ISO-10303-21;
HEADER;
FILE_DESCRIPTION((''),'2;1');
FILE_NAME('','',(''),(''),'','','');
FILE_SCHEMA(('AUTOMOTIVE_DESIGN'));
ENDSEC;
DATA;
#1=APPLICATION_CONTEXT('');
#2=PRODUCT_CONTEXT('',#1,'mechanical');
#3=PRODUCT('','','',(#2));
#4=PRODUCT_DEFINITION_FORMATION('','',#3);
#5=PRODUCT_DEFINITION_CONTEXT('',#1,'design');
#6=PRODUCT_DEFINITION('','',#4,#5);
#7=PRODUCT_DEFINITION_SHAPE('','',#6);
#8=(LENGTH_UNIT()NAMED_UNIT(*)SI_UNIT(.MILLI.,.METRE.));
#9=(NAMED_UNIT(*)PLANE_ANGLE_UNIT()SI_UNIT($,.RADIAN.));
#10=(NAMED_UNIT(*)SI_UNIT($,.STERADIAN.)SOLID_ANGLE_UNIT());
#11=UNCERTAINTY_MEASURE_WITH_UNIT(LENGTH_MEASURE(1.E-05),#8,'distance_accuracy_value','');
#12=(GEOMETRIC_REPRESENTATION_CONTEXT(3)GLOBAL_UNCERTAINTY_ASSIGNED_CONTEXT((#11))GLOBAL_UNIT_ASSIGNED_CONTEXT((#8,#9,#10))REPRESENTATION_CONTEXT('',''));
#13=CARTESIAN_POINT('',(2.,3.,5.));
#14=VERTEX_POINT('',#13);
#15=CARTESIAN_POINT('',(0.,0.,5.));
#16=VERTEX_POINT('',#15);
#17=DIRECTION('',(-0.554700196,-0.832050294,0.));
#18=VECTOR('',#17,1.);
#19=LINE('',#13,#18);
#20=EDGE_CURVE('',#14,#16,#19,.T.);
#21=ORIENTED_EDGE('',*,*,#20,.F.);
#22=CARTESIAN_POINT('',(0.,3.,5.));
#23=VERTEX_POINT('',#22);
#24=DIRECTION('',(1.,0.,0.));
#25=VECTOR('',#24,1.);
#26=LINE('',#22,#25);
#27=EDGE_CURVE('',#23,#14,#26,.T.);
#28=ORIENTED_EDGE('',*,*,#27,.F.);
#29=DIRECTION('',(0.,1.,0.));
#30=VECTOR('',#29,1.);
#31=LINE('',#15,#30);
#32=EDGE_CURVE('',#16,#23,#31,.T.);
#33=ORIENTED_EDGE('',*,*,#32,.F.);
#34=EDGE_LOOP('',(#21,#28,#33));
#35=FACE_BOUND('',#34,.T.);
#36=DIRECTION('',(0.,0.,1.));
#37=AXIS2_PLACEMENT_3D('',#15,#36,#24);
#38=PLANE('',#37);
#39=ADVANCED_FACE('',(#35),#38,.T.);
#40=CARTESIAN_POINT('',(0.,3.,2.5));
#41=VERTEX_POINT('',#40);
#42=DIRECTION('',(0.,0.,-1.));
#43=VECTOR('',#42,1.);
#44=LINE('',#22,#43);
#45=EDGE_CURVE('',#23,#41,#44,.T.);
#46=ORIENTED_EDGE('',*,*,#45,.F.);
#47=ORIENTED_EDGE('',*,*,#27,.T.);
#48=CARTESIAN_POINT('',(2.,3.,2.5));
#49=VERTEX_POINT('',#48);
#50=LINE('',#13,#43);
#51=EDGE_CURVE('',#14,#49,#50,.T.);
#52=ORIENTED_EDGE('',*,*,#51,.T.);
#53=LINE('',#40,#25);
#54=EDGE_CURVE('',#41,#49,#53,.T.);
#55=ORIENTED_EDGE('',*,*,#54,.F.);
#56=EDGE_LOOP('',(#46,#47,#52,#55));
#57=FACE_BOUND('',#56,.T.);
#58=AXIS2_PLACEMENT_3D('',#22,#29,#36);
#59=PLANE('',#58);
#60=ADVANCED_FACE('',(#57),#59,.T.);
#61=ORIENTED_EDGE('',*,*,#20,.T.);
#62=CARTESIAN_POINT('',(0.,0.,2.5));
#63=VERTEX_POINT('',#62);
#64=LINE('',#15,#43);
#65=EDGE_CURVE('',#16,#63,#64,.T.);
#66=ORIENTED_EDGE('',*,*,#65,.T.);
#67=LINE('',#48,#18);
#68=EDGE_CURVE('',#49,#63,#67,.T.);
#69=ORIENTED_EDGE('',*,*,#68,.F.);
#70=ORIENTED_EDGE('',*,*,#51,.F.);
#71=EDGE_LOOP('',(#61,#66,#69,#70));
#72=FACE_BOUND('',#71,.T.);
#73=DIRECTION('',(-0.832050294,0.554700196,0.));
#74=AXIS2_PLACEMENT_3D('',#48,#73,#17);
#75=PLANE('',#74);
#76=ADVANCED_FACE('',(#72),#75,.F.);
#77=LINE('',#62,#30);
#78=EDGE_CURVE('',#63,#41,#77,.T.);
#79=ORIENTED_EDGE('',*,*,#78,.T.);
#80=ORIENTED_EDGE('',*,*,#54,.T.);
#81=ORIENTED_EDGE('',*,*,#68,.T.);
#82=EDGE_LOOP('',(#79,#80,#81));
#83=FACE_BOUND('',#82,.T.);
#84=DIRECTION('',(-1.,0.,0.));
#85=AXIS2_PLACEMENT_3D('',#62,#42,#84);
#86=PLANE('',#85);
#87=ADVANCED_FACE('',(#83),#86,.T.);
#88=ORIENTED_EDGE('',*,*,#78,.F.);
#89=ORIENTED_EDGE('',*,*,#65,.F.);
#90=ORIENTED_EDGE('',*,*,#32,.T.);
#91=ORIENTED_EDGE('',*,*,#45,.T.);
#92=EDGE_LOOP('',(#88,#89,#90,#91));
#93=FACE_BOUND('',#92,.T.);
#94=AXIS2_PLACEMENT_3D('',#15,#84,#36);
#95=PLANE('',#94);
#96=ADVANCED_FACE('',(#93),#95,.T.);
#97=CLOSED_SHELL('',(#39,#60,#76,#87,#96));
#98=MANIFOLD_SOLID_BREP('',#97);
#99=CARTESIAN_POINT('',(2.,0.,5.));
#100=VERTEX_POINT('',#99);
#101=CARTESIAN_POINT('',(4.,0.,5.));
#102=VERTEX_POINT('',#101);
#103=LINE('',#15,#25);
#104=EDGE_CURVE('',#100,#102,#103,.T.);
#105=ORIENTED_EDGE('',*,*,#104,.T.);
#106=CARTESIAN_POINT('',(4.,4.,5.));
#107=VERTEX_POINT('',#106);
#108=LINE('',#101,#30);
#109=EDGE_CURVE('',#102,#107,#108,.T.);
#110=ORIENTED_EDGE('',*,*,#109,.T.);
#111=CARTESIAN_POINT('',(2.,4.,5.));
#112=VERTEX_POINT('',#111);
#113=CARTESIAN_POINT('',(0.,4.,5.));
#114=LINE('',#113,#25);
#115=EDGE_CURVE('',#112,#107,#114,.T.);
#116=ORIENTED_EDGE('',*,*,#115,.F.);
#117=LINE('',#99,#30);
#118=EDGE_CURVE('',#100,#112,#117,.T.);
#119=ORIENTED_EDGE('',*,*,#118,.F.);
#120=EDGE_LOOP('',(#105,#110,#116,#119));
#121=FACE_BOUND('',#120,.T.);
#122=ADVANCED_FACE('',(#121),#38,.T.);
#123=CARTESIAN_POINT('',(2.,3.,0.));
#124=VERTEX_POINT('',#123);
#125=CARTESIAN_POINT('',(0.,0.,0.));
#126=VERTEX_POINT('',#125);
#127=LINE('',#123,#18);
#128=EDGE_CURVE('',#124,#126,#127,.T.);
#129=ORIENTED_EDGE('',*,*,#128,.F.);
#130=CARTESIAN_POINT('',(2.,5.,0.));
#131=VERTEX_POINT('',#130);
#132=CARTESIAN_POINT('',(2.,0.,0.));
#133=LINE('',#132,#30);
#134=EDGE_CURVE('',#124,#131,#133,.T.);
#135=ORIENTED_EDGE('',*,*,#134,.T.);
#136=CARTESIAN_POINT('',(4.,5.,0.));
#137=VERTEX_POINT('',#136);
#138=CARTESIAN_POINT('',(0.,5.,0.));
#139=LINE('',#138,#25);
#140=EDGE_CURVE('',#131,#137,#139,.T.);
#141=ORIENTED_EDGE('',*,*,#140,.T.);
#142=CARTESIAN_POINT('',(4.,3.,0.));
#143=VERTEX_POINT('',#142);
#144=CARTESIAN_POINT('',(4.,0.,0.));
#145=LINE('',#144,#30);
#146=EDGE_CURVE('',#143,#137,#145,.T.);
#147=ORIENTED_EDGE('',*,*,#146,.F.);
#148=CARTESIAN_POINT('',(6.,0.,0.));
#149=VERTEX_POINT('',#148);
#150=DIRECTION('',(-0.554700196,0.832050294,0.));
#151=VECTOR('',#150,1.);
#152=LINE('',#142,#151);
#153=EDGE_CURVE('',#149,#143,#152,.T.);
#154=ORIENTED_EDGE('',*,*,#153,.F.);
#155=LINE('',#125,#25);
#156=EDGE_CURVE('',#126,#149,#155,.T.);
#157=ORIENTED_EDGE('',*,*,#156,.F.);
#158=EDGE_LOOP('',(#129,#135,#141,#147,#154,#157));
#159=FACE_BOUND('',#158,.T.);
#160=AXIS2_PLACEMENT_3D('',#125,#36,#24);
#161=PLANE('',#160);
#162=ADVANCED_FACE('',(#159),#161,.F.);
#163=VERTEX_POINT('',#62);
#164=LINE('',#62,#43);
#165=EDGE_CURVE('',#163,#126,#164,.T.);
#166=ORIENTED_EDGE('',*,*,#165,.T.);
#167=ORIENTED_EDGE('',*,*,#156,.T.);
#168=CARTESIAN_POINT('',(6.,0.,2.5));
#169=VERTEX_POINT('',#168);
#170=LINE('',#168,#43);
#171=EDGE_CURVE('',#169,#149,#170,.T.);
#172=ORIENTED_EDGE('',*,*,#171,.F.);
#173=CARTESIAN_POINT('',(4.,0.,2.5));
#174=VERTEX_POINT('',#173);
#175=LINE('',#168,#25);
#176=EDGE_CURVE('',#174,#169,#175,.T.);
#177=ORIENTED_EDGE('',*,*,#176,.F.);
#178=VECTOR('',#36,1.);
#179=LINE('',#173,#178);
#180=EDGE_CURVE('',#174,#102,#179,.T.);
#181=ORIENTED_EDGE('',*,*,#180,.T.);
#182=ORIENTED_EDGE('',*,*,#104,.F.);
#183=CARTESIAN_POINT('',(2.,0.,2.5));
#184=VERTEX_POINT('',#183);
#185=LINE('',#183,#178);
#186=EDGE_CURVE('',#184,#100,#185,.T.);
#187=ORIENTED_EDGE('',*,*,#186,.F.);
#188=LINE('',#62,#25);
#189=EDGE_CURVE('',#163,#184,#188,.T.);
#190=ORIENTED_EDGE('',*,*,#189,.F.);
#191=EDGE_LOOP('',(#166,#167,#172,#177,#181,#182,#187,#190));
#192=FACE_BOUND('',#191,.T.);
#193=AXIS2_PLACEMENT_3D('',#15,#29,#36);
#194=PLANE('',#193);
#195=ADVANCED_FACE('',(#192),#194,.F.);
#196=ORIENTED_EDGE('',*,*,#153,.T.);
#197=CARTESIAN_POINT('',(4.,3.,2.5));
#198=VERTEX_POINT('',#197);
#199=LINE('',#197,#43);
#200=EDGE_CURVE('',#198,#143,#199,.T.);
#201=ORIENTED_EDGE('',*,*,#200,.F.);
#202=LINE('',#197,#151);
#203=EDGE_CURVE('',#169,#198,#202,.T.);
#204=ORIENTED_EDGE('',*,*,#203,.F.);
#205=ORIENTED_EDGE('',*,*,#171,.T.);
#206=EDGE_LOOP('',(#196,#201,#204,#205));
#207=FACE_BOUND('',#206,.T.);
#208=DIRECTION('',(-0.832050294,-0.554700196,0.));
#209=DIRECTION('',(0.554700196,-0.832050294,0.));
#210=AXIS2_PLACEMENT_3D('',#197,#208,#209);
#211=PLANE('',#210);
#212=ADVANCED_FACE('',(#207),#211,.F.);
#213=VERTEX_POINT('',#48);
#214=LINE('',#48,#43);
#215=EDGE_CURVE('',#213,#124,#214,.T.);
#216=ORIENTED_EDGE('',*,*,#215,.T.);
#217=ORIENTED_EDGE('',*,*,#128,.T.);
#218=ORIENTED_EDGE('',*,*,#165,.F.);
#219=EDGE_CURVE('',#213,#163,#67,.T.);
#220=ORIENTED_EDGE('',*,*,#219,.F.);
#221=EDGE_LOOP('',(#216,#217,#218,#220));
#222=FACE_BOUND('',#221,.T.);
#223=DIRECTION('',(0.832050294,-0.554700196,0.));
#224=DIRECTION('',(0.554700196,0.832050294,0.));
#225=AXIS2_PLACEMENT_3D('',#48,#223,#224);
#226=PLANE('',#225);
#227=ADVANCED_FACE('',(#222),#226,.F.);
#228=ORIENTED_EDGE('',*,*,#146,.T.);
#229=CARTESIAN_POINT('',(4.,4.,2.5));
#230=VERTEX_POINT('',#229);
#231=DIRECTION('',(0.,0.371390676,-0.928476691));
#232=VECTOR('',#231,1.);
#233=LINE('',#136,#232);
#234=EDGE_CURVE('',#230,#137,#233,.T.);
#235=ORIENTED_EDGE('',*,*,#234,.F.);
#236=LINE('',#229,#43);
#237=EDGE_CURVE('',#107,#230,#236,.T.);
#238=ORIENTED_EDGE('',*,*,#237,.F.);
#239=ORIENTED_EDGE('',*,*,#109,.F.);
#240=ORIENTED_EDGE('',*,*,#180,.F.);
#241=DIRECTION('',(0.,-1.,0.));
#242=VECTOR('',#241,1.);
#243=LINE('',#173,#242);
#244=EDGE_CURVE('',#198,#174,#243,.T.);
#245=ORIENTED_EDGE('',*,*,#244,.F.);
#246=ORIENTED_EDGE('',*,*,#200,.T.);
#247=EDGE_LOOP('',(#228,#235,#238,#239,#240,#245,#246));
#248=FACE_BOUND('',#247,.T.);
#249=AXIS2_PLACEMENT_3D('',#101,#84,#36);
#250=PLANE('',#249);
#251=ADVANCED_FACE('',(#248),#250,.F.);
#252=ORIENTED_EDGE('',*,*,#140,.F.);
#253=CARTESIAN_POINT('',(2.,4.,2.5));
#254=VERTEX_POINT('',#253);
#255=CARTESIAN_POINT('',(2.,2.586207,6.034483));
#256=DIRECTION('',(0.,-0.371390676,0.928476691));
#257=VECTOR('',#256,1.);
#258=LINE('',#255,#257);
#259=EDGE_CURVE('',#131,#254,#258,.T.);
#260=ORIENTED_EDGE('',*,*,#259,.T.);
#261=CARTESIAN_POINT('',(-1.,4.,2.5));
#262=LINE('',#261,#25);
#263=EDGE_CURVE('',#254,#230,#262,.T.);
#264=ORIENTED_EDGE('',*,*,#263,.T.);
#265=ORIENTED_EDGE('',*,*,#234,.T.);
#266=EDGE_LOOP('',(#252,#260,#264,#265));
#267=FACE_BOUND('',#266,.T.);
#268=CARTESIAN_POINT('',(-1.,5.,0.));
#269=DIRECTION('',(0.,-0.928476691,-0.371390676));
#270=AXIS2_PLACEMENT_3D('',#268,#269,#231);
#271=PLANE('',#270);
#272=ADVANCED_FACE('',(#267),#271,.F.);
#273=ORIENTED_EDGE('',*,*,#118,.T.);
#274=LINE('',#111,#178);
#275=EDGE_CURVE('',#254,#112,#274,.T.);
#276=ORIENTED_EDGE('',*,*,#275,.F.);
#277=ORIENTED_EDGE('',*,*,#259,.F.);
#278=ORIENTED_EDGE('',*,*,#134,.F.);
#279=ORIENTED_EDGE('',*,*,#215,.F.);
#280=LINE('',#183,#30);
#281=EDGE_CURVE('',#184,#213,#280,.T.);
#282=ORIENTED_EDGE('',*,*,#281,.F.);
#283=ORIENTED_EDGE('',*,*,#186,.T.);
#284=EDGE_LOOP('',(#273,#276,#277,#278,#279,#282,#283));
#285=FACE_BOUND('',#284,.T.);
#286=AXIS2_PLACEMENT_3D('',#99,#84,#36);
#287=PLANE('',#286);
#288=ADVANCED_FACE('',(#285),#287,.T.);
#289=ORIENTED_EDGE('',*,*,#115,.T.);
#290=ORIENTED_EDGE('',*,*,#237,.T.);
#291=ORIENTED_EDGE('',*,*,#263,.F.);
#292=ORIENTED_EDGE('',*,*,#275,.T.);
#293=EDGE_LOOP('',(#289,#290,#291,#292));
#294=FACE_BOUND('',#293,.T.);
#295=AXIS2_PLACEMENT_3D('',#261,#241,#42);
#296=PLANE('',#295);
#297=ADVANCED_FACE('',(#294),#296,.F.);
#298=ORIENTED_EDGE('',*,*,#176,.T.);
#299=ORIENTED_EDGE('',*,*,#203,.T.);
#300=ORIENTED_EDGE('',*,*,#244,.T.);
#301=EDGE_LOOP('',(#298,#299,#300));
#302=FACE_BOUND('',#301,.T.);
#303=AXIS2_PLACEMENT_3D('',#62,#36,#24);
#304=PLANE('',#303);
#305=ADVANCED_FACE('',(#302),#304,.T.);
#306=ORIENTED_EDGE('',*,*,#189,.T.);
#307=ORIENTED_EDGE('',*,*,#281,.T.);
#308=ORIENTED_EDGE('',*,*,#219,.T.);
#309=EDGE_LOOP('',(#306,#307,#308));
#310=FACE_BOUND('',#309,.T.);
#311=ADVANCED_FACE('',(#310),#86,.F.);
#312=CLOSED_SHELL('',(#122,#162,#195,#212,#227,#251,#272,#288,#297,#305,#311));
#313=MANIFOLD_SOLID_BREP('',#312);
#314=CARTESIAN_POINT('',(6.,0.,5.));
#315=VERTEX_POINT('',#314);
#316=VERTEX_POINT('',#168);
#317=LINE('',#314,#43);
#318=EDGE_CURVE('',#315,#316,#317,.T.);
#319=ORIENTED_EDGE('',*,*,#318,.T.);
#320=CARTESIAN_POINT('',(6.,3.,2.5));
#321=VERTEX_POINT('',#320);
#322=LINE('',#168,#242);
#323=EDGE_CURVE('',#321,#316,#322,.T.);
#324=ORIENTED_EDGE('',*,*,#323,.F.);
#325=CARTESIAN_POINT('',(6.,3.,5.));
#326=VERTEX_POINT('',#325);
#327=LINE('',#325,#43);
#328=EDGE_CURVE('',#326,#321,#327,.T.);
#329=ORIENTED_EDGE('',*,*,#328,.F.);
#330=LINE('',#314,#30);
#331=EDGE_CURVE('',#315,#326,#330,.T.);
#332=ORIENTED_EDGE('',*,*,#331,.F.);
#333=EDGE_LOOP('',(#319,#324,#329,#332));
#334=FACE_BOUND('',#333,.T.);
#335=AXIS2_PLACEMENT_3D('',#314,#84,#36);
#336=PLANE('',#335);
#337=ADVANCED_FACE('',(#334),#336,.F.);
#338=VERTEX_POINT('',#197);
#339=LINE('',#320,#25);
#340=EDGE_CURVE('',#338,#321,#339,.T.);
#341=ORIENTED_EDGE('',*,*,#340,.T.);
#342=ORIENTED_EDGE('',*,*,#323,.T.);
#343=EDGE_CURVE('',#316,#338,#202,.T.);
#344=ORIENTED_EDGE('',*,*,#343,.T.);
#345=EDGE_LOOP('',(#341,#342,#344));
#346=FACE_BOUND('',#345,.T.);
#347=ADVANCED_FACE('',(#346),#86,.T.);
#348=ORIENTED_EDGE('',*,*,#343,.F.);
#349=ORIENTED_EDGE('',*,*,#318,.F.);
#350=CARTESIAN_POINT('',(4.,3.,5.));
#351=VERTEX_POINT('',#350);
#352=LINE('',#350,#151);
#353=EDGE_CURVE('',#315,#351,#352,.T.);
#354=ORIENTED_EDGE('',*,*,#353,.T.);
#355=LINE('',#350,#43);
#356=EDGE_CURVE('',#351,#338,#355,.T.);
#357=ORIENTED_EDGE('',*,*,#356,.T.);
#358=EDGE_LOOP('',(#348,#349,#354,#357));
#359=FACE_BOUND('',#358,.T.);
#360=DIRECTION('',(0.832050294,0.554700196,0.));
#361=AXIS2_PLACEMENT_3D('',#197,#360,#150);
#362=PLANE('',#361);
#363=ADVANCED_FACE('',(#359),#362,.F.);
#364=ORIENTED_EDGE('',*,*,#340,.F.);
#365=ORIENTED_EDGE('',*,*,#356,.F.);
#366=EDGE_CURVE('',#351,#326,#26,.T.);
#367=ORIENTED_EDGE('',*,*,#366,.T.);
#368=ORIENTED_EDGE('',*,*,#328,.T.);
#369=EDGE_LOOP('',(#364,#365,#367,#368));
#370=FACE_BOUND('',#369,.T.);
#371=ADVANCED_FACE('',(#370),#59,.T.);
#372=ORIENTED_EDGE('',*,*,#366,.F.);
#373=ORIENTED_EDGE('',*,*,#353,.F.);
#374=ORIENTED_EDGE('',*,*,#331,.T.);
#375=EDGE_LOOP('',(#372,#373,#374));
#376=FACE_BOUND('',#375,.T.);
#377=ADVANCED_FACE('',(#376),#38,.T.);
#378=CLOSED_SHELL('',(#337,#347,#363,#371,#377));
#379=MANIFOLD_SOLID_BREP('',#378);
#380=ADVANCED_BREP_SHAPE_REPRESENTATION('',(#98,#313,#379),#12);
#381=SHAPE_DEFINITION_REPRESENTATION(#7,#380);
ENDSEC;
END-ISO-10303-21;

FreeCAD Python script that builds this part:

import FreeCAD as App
import Part
import Sketcher
from FreeCAD import Vector

doc = App.newDocument("Part")
body = doc.addObject("PartDesign::Body", "Body")
body.AllowCompound = True

# Sketch on XY plane
sketch1 = doc.addObject("Sketcher::SketchObject", "Sketch")
body.addObject(sketch1)
sketch1.AttachmentSupport = (doc.XY_Plane, [""])
sketch1.MapMode = "FlatFace"
sketch1.addGeometry(Part.LineSegment(Vector(0, 3, 0), Vector(0, 0, 0)), False)
sketch1.addGeometry(Part.LineSegment(Vector(0, 0, 0), Vector(6, 0, 0)), False)
sketch1.addGeometry(Part.LineSegment(Vector(6, 0, 0), Vector(6, 3, 0)), False)
sketch1.addGeometry(Part.LineSegment(Vector(6, 3, 0), Vector(4, 3, 0)), False)
sketch1.addGeometry(Part.LineSegment(Vector(4, 3, 0), Vector(4, 5, 0)), False)
sketch1.addGeometry(Part.LineSegment(Vector(4, 5, 0), Vector(2, 5, 0)), False)
sketch1.addGeometry(Part.LineSegment(Vector(2, 5, 0), Vector(2, 3, 0)), False)
sketch1.addGeometry(Part.LineSegment(Vector(2, 3, 0), Vector(0, 3, 0)), False)
sketch1.addConstraint(Sketcher.Constraint("Coincident", 0, 2, 1, 1))
sketch1.addConstraint(Sketcher.Constraint("Coincident", 1, 2, 2, 1))
sketch1.addConstraint(Sketcher.Constraint("Coincident", 2, 2, 3, 1))
sketch1.addConstraint(Sketcher.Constraint("Coincident", 3, 2, 4, 1))
sketch1.addConstraint(Sketcher.Constraint("Coincident", 4, 2, 5, 1))
sketch1.addConstraint(Sketcher.Constraint("Coincident", 5, 2, 6, 1))
sketch1.addConstraint(Sketcher.Constraint("Coincident", 6, 2, 7, 1))
sketch1.addConstraint(Sketcher.Constraint("Coincident", 7, 2, 0, 1))
sketch1.addConstraint(Sketcher.Constraint("Vertical", 0))
sketch1.addConstraint(Sketcher.Constraint("Horizontal", 1))
sketch1.addConstraint(Sketcher.Constraint("Vertical", 2))
sketch1.addConstraint(Sketcher.Constraint("Horizontal", 3))
sketch1.addConstraint(Sketcher.Constraint("Vertical", 4))
sketch1.addConstraint(Sketcher.Constraint("Horizontal", 5))
sketch1.addConstraint(Sketcher.Constraint("Vertical", 6))
sketch1.addConstraint(Sketcher.Constraint("Horizontal", 7))
sketch1.addConstraint(Sketcher.Constraint("Coincident", 0, 2, -1, 1))
sketch1.addConstraint(Sketcher.Constraint("Horizontal", 3, 2, 6, 2))
sketch1.addConstraint(Sketcher.Constraint("Equal", 3, 5))
sketch1.addConstraint(Sketcher.Constraint("Equal", 5, 7))
sketch1.addConstraint(Sketcher.Constraint("Equal", 7, 4))
sketch1.addConstraint(Sketcher.Constraint("DistanceX", 1, 1, 1, 2, 6.0))
sketch1.addConstraint(Sketcher.Constraint("DistanceY", 0, 2, 0, 1, 3.0))
pad1 = doc.addObject("PartDesign::Pad", "Pad")
body.addObject(pad1)
pad1.Profile = sketch1
pad1.Length = 5

# Sketch on YZ plane
sketch2 = doc.addObject("Sketcher::SketchObject", "Sketch001")
body.addObject(sketch2)
sketch2.AttachmentSupport = (doc.YZ_Plane, [""])
sketch2.MapMode = "FlatFace"
sketch2.AttachmentOffset = App.Placement(Vector(0, 0, 4), App.Rotation())
sketch2.addGeometry(Part.LineSegment(Vector(4, 2.5, 0), Vector(5, 0, 0)), False)
sketch2.addGeometry(Part.LineSegment(Vector(5, 0, 0), Vector(5, 5, 0)), False)
sketch2.addGeometry(Part.LineSegment(Vector(5, 5, 0), Vector(4, 5, 0)), False)
sketch2.addGeometry(Part.LineSegment(Vector(4, 5, 0), Vector(4, 2.5, 0)), False)
sketch2.addConstraint(Sketcher.Constraint("Coincident", 0, 2, 1, 1))
sketch2.addConstraint(Sketcher.Constraint("Coincident", 1, 2, 2, 1))
sketch2.addConstraint(Sketcher.Constraint("Coincident", 2, 2, 3, 1))
sketch2.addConstraint(Sketcher.Constraint("Coincident", 3, 2, 0, 1))
sketch2.addConstraint(Sketcher.Constraint("Vertical", 1))
sketch2.addConstraint(Sketcher.Constraint("Horizontal", 2))
sketch2.addConstraint(Sketcher.Constraint("Vertical", 3))
sketch2.addConstraint(Sketcher.Constraint("PointOnObject", 0, 2, -1))
sketch2.addConstraint(Sketcher.Constraint("DistanceX", 2, 2, 2, 1, 1.0))
sketch2.addConstraint(Sketcher.Constraint("DistanceY", 1, 1, 1, 2, 5.0))
sketch2.addConstraint(Sketcher.Constraint("DistanceY", 3, 2, 3, 1, 2.5))
sketch2.addConstraint(Sketcher.Constraint("DistanceX", -1, 1, 0, 2, 5.0))
pocket1 = doc.addObject("PartDesign::Pocket", "Pocket")
body.addObject(pocket1)
pocket1.Profile = sketch2
pocket1.Length = 5

# Sketch on XY plane
sketch3 = doc.addObject("Sketcher::SketchObject", "Sketch002")
body.addObject(sketch3)
sketch3.AttachmentSupport = (doc.XY_Plane, [""])
sketch3.MapMode = "FlatFace"
sketch3.addGeometry(Part.LineSegment(Vector(6, 0, 0), Vector(4, 3, 0)), False)
sketch3.addGeometry(Part.LineSegment(Vector(4, 3, 0), Vector(6, 3, 0)), False)
sketch3.addGeometry(Part.LineSegment(Vector(6, 3, 0), Vector(6, 0, 0)), False)
sketch3.addConstraint(Sketcher.Constraint("Coincident", 0, 2, 1, 1))
sketch3.addConstraint(Sketcher.Constraint("Coincident", 1, 2, 2, 1))
sketch3.addConstraint(Sketcher.Constraint("Coincident", 2, 2, 0, 1))
sketch3.addConstraint(Sketcher.Constraint("Horizontal", 1))
sketch3.addConstraint(Sketcher.Constraint("Vertical", 2))
sketch3.addConstraint(Sketcher.Constraint("PointOnObject", 2, 2, -1))
sketch3.addConstraint(Sketcher.Constraint("DistanceX", 1, 1, 1, 2, 2.0))
sketch3.addConstraint(Sketcher.Constraint("DistanceY", 2, 2, 2, 1, 3.0))
sketch3.addConstraint(Sketcher.Constraint("DistanceX", -1, 1, 0, 2, 4.0))
pocket2 = doc.addObject("PartDesign::Pocket", "Pocket001")
body.addObject(pocket2)
pocket2.Profile = sketch3
pocket2.Length = 2.5
pocket2.Reversed = True

# Sketch on XY plane
sketch4 = doc.addObject("Sketcher::SketchObject", "Sketch003")
body.addObject(sketch4)
sketch4.AttachmentSupport = (doc.XY_Plane, [""])
sketch4.MapMode = "FlatFace"
sketch4.AttachmentOffset = App.Placement(Vector(0, 0, 5), App.Rotation())
sketch4.addGeometry(Part.LineSegment(Vector(6, 0, 0), Vector(4, 3, 0)), False)
sketch4.addGeometry(Part.LineSegment(Vector(4, 3, 0), Vector(4, 0, 0)), False)
sketch4.addGeometry(Part.LineSegment(Vector(4, 0, 0), Vector(6, 0, 0)), False)
sketch4.addConstraint(Sketcher.Constraint("Coincident", 0, 2, 1, 1))
sketch4.addConstraint(Sketcher.Constraint("Coincident", 1, 2, 2, 1))
sketch4.addConstraint(Sketcher.Constraint("Coincident", 2, 2, 0, 1))
sketch4.addConstraint(Sketcher.Constraint("Vertical", 1))
sketch4.addConstraint(Sketcher.Constraint("Horizontal", 2))
sketch4.addConstraint(Sketcher.Constraint("PointOnObject", 1, 2, -1))
sketch4.addConstraint(Sketcher.Constraint("DistanceX", 2, 1, 2, 2, 2.0))
sketch4.addConstraint(Sketcher.Constraint("DistanceY", 1, 2, 1, 1, 3.0))
sketch4.addConstraint(Sketcher.Constraint("DistanceX", -1, 1, 0, 2, 4.0))
pocket3 = doc.addObject("PartDesign::Pocket", "Pocket002")
body.addObject(pocket3)
pocket3.Profile = sketch4
pocket3.Length = 2.5

# Sketch on XY plane
sketch5 = doc.addObject("Sketcher::SketchObject", "Sketch004")
body.addObject(sketch5)
sketch5.AttachmentSupport = (doc.XY_Plane, [""])
sketch5.MapMode = "FlatFace"
sketch5.addGeometry(Part.LineSegment(Vector(0, 3, 0), Vector(2, 3, 0)), False)
sketch5.addGeometry(Part.LineSegment(Vector(2, 3, 0), Vector(0, 0, 0)), False)
sketch5.addGeometry(Part.LineSegment(Vector(0, 0, 0), Vector(0, 3, 0)), False)
sketch5.addConstraint(Sketcher.Constraint("Coincident", 0, 2, 1, 1))
sketch5.addConstraint(Sketcher.Constraint("Coincident", 1, 2, 2, 1))
sketch5.addConstraint(Sketcher.Constraint("Coincident", 2, 2, 0, 1))
sketch5.addConstraint(Sketcher.Constraint("Horizontal", 0))
sketch5.addConstraint(Sketcher.Constraint("Vertical", 2))
sketch5.addConstraint(Sketcher.Constraint("Coincident", 1, 2, -1, 1))
sketch5.addConstraint(Sketcher.Constraint("DistanceX", 0, 1, 0, 2, 2.0))
sketch5.addConstraint(Sketcher.Constraint("DistanceY", 2, 1, 2, 2, 3.0))
pocket4 = doc.addObject("PartDesign::Pocket", "Pocket003")
body.addObject(pocket4)
pocket4.Profile = sketch5
pocket4.Length = 2.5
pocket4.Reversed = True

# Sketch on XY plane
sketch6 = doc.addObject("Sketcher::SketchObject", "Sketch005")
body.addObject(sketch6)
sketch6.AttachmentSupport = (doc.XY_Plane, [""])
sketch6.MapMode = "FlatFace"
sketch6.AttachmentOffset = App.Placement(Vector(0, 0, 5), App.Rotation())
sketch6.addGeometry(Part.LineSegment(Vector(2, 3, 0), Vector(0, 0, 0)), False)
sketch6.addGeometry(Part.LineSegment(Vector(0, 0, 0), Vector(2, 0, 0)), False)
sketch6.addGeometry(Part.LineSegment(Vector(2, 0, 0), Vector(2, 3, 0)), False)
sketch6.addConstraint(Sketcher.Constraint("Coincident", 0, 2, 1, 1))
sketch6.addConstraint(Sketcher.Constraint("Coincident", 1, 2, 2, 1))
sketch6.addConstraint(Sketcher.Constraint("Coincident", 2, 2, 0, 1))
sketch6.addConstraint(Sketcher.Constraint("Horizontal", 1))
sketch6.addConstraint(Sketcher.Constraint("Vertical", 2))
sketch6.addConstraint(Sketcher.Constraint("Coincident", 0, 2, -1, 1))
sketch6.addConstraint(Sketcher.Constraint("DistanceX", 1, 1, 1, 2, 2.0))
sketch6.addConstraint(Sketcher.Constraint("DistanceY", 2, 1, 2, 2, 3.0))
pocket5 = doc.addObject("PartDesign::Pocket", "Pocket004")
body.addObject(pocket5)
pocket5.Profile = sketch6
pocket5.Length = 2.5

doc.recompute()
